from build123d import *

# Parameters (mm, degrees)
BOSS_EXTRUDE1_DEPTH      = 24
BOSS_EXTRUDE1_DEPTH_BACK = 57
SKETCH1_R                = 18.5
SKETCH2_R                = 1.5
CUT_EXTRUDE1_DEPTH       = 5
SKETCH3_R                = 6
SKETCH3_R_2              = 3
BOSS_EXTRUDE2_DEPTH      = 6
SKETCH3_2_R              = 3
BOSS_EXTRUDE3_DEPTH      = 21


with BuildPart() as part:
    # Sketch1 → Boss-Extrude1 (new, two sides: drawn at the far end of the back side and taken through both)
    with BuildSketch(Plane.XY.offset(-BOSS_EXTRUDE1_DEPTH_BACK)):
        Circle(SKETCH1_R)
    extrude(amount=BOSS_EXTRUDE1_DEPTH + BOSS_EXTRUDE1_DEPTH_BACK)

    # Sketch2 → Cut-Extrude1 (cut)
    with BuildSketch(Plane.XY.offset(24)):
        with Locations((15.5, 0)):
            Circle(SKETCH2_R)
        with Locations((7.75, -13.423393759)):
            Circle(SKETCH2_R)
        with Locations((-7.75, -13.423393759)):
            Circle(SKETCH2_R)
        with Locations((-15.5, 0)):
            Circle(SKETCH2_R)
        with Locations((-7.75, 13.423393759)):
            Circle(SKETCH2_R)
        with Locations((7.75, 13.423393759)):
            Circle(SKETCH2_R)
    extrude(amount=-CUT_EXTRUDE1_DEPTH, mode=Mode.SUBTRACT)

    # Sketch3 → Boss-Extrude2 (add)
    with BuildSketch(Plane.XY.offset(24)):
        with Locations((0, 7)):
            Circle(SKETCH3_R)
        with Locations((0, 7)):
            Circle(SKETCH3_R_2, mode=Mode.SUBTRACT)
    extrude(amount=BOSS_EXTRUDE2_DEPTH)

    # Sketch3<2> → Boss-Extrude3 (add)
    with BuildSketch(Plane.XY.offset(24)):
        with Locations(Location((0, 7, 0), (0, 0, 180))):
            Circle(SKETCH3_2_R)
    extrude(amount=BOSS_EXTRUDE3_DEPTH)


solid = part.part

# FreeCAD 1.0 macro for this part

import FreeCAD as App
import Part
import Sketcher
Q = App.Units.Quantity

doc = App.newDocument("Part")
params = doc.addObject("Spreadsheet::Sheet", "Params")
for row, (alias, value) in enumerate([
    ("sketch1_diameter", "37 mm"),
    ("pad1_length", "24 mm"),
    ("pad1_length2", "57 mm"),
    ("sketch2_diameter", "3 mm"),
    ("pocket1_length", "5 mm"),
    ("sketch3_diameter", "12 mm"),
    ("sketch3_diameter2", "6 mm"),
    ("pad2_length", "6 mm"),
    ("sketch4_diameter", "6 mm"),
    ("pad3_length", "21 mm"),
], start=1):
    params.set(f"A{row}", alias)
    params.set(f"B{row}", "=" + value)
    params.setAlias(f"B{row}", alias)

body = doc.addObject("PartDesign::Body", "Body")

sketch1 = body.newObject("Sketcher::SketchObject", "Sketch")
sketch1.AttachmentSupport = (doc.getObject("XY_Plane"), [""])
sketch1.MapMode = "FlatFace"
sketch1.addGeometry(Part.Circle(App.Vector(0, 0, 0), App.Vector(0, 0, 1), 18), False)
sketch1.addConstraint([
    Sketcher.Constraint("Coincident", 0, 3, -1, 1),
    Sketcher.Constraint("Diameter", 0, Q("37 mm")),
])
sketch1.setExpression("Constraints[1]", "Params.sketch1_diameter")
pad1 = body.newObject("PartDesign::Pad", "Pad")
pad1.Profile = sketch1
pad1.Type = "TwoLengths"
pad1.setExpression("Length", "Params.pad1_length")
pad1.setExpression("Length2", "Params.pad1_length2")

sketch2 = body.newObject("Sketcher::SketchObject", "Sketch001")
sketch2.AttachmentSupport = (doc.getObject("XY_Plane"), [""])
sketch2.MapMode = "FlatFace"
sketch2.AttachmentOffset = App.Placement(App.Vector(0, 0, 24), App.Rotation())
sketch2.addGeometry([
    Part.Circle(App.Vector(15.5, 0, 0), App.Vector(0, 0, 1), 1.5),
    Part.Circle(App.Vector(7.8, -13.4, 0), App.Vector(0, 0, 1), 1.5),
    Part.Circle(App.Vector(-7.8, -13.4, 0), App.Vector(0, 0, 1), 1.5),
    Part.Circle(App.Vector(-15.5, 0, 0), App.Vector(0, 0, 1), 1.5),
    Part.Circle(App.Vector(-7.8, 13.4, 0), App.Vector(0, 0, 1), 1.5),
    Part.Circle(App.Vector(7.8, 13.4, 0), App.Vector(0, 0, 1), 1.5),
], False)
sketch2.addConstraint([
    Sketcher.Constraint("Equal", 0, 1),
    Sketcher.Constraint("Equal", 1, 2),
    Sketcher.Constraint("Equal", 2, 3),
    Sketcher.Constraint("Equal", 3, 4),
    Sketcher.Constraint("Equal", 4, 5),
    Sketcher.Constraint("Symmetric", 0, 3, 3, 3, -1, 1),
    Sketcher.Constraint("Symmetric", 1, 3, 4, 3, -1, 1),
    Sketcher.Constraint("Symmetric", 2, 3, 5, 3, -1, 1),
    Sketcher.Constraint("Symmetric", 1, 3, 2, 3, -2),
    Sketcher.Constraint("PointOnObject", 0, 3, -1),
    Sketcher.Constraint("Diameter", 0, Q("3 mm")),
    Sketcher.Constraint("DistanceX", 3, 3, 0, 3, Q("31 mm")),
    Sketcher.Constraint("DistanceX", 2, 3, 1, 3, Q("15.5 mm")),
    Sketcher.Constraint("DistanceY", 1, 3, -1, 1, Q("13.423394 mm")),
])
sketch2.setExpression("Constraints[10]", "Params.sketch2_diameter")
pocket1 = body.newObject("PartDesign::Pocket", "Pocket")
pocket1.Profile = sketch2
pocket1.setExpression("Length", "Params.pocket1_length")

sketch3 = body.newObject("Sketcher::SketchObject", "Sketch002")
sketch3.AttachmentSupport = (doc.getObject("XY_Plane"), [""])
sketch3.MapMode = "FlatFace"
sketch3.AttachmentOffset = App.Placement(App.Vector(0, 0, 24), App.Rotation())
sketch3.addGeometry([
    Part.Circle(App.Vector(0, 7, 0), App.Vector(0, 0, 1), 6),
    Part.Circle(App.Vector(0, 7, 0), App.Vector(0, 0, 1), 3),
], False)
sketch3.addConstraint([
    Sketcher.Constraint("Coincident", 1, 3, 0, 3),
    Sketcher.Constraint("PointOnObject", 0, 3, -2),
    Sketcher.Constraint("Diameter", 0, Q("12 mm")),
    Sketcher.Constraint("Diameter", 1, Q("6 mm")),
    Sketcher.Constraint("DistanceY", -1, 1, 0, 3, Q("7 mm")),
])
sketch3.setExpression("Constraints[2]", "Params.sketch3_diameter")
sketch3.setExpression("Constraints[3]", "Params.sketch3_diameter2")
pad2 = body.newObject("PartDesign::Pad", "Pad001")
pad2.Profile = sketch3
pad2.setExpression("Length", "Params.pad2_length")

sketch4 = body.newObject("Sketcher::SketchObject", "Sketch003")
sketch4.AttachmentSupport = (doc.getObject("XY_Plane"), [""])
sketch4.MapMode = "FlatFace"
sketch4.AttachmentOffset = App.Placement(App.Vector(0, 0, 24), App.Rotation())
sketch4.addGeometry(Part.Circle(App.Vector(0, 7, 0), App.Vector(0, 0, 1), 3), False)
sketch4.addConstraint([
    Sketcher.Constraint("PointOnObject", 0, 3, -2),
    Sketcher.Constraint("Diameter", 0, Q("6 mm")),
    Sketcher.Constraint("DistanceY", -1, 1, 0, 3, Q("7 mm")),
])
sketch4.setExpression("Constraints[1]", "Params.sketch4_diameter")
pad3 = body.newObject("PartDesign::Pad", "Pad002")
pad3.Profile = sketch4
pad3.setExpression("Length", "Params.pad3_length")

doc.recompute()
